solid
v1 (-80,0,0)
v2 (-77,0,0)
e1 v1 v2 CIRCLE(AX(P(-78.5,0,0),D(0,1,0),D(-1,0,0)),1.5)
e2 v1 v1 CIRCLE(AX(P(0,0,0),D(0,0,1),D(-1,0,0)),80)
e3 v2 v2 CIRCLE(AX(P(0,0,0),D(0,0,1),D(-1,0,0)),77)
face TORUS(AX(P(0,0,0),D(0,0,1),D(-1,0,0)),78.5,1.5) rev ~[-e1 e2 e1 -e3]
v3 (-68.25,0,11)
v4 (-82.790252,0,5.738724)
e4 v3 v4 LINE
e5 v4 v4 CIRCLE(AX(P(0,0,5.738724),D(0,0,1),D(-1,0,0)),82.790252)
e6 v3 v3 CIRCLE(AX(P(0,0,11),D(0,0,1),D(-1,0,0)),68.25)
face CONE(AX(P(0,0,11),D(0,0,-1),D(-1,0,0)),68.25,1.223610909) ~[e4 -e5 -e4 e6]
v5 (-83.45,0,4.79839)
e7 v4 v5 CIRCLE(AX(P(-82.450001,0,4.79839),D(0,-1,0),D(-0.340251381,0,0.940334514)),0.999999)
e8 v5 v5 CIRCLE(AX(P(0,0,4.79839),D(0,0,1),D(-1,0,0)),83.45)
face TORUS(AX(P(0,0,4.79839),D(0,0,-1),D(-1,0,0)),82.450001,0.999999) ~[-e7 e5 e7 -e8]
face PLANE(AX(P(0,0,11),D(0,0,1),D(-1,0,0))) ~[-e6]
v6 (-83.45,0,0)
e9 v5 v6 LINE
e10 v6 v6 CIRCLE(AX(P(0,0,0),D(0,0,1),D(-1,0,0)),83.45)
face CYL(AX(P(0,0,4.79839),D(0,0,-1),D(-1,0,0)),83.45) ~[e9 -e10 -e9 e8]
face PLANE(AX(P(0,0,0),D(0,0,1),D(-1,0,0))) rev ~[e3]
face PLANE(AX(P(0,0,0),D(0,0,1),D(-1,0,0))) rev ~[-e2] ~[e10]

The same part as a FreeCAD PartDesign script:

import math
import FreeCAD as App
import Part
import Sketcher

V = App.Vector
Q = App.Units.Quantity

doc = App.newDocument("Part")
body = doc.addObject("PartDesign::Body", "Body")

# Sketch on XZ plane
sketch1 = doc.addObject("Sketcher::SketchObject", "Sketch")
body.addObject(sketch1)
sketch1.AttachmentSupport = (doc.XZ_Plane, [""])
sketch1.MapMode = "FlatFace"
sketch1.addGeometry(Part.LineSegment(V(-83.45, 4.79839, 0), V(-83.45, 0, 0)), False)
sketch1.addGeometry(Part.LineSegment(V(-83.45, 0, 0), V(-80, 0, 0)), False)
sketch1.addGeometry(Part.ArcOfCircle(Part.Circle(V(-78.5, 0, 0), V(0, 0, 1), 1.5), math.radians(0), math.radians(180)), False)
sketch1.addGeometry(Part.LineSegment(V(-77, 0, 0), V(0, 0, 0)), False)
sketch1.addGeometry(Part.LineSegment(V(0, 0, 0), V(0, 11, 0)), False)
sketch1.addGeometry(Part.LineSegment(V(0, 11, 0), V(-68.25, 11, 0)), False)
sketch1.addGeometry(Part.LineSegment(V(-68.25, 11, 0), V(-82.790252, 5.738724, 0)), False)
sketch1.addGeometry(Part.ArcOfCircle(Part.Circle(V(-82.450001, 4.79839, 0), V(0, 0, 1), 0.999999), math.radians(109.89219), math.radians(180.000021)), False)
sketch1.addConstraint(Sketcher.Constraint("Coincident", 0, 2, 1, 1))
sketch1.addConstraint(Sketcher.Constraint("Coincident", 1, 2, 2, 2))
sketch1.addConstraint(Sketcher.Constraint("Coincident", 2, 1, 3, 1))
sketch1.addConstraint(Sketcher.Constraint("Coincident", 3, 2, 4, 1))
sketch1.addConstraint(Sketcher.Constraint("Coincident", 4, 2, 5, 1))
sketch1.addConstraint(Sketcher.Constraint("Coincident", 5, 2, 6, 1))
sketch1.addConstraint(Sketcher.Constraint("Tangent", 6, 2, 7, 1))
sketch1.addConstraint(Sketcher.Constraint("Tangent", 7, 2, 0, 1))
sketch1.addConstraint(Sketcher.Constraint("Vertical", 0))
sketch1.addConstraint(Sketcher.Constraint("Horizontal", 1))
sketch1.addConstraint(Sketcher.Constraint("Horizontal", 3))
sketch1.addConstraint(Sketcher.Constraint("Vertical", 4))
sketch1.addConstraint(Sketcher.Constraint("Horizontal", 5))
sketch1.addConstraint(Sketcher.Constraint("Coincident", 3, 2, -1, 1))
sketch1.addConstraint(Sketcher.Constraint("PointOnObject", 2, 3, -1))
sketch1.addConstraint(Sketcher.Constraint("PointOnObject", 0, 2, -1))
sketch1.addConstraint(Sketcher.Constraint("Radius", 7, Q("0.999999 mm")))
sketch1.addConstraint(Sketcher.Constraint("Radius", 2, Q("1.5 mm")))
sketch1.addConstraint(Sketcher.Constraint("DistanceX", 3, 1, 3, 2, Q("77 mm")))
sketch1.addConstraint(Sketcher.Constraint("DistanceY", 4, 1, 4, 2, Q("11 mm")))
sketch1.addConstraint(Sketcher.Constraint("DistanceX", 1, 1, 1, 2, Q("3.45 mm")))
sketch1.addConstraint(Sketcher.Constraint("DistanceX", 5, 2, 5, 1, Q("68.25 mm")))
sketch1.addConstraint(Sketcher.Constraint("DistanceY", 0, 2, 0, 1, Q("4.79839 mm")))
revolution = doc.addObject("PartDesign::Revolution", "Revolution")
body.addObject(revolution)
revolution.Profile = sketch1
revolution.ReferenceAxis = (sketch1, ["V_Axis"])
revolution.Angle = 360

doc.recompute()
